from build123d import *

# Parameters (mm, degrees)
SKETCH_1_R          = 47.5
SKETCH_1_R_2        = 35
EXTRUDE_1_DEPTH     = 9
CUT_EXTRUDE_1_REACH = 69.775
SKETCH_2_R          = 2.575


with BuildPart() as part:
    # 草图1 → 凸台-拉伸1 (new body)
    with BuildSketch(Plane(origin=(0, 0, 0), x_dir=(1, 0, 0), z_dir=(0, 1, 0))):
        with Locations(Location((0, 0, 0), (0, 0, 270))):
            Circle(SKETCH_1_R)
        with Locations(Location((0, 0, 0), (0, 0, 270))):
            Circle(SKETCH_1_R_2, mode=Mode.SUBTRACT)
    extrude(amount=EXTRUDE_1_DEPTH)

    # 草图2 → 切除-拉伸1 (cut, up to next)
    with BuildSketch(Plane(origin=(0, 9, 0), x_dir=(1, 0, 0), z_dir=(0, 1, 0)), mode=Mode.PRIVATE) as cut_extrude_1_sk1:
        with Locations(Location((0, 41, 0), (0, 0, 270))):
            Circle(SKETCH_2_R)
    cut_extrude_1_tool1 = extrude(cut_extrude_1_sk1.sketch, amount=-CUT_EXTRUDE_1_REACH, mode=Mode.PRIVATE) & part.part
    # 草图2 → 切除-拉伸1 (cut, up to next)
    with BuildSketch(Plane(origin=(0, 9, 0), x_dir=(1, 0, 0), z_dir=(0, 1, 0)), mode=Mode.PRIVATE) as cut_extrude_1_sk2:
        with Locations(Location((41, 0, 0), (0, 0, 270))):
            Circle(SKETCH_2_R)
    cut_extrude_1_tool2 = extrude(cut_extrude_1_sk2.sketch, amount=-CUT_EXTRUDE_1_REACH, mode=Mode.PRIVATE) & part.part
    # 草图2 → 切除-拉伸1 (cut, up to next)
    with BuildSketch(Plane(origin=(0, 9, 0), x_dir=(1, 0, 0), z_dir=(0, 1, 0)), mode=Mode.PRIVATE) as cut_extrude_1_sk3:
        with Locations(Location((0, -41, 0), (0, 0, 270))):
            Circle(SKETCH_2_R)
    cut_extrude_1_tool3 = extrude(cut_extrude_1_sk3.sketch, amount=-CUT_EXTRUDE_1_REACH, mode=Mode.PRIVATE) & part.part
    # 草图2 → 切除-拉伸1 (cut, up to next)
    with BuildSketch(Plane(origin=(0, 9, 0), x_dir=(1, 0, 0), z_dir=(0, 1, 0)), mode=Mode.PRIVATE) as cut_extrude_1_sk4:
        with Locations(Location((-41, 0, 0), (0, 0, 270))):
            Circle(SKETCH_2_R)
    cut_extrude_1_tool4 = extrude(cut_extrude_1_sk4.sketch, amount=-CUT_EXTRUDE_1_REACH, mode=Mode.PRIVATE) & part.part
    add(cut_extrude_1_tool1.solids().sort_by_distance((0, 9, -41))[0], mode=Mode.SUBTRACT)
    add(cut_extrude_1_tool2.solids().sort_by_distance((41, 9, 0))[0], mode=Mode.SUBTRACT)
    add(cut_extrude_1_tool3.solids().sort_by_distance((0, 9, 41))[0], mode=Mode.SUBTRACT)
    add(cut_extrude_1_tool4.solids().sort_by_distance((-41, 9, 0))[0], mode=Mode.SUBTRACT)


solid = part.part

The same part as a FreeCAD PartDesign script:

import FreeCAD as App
import Part
import Sketcher
from FreeCAD import Vector
Q = App.Units.Quantity

doc = App.newDocument("Part")
params = doc.addObject("Spreadsheet::Sheet", "Params")
for row, (alias, value) in enumerate([
    ("sketch1_diameter", "95 mm"),
    ("sketch1_diameter2", "70 mm"),
    ("pad1_length", "9 mm"),
    ("sketch2_diameter", "5.15 mm"),
    ("sketch3_diameter", "5.15 mm"),
    ("sketch4_diameter", "5.15 mm"),
    ("sketch5_diameter", "5.15 mm"),
], start=1):
    params.set(f"A{row}", alias)
    params.set(f"B{row}", "=" + value)
    params.setAlias(f"B{row}", alias)

body = doc.addObject("PartDesign::Body", "Body")

# Sketch on XZ plane
sketch1 = body.newObject("Sketcher::SketchObject", "Sketch")
sketch1.AttachmentSupport = (doc.getObject("XZ_Plane"), [""])
sketch1.MapMode = "FlatFace"
sketch1.addGeometry(Part.Circle(Vector(0, 0, 0), Vector(0, 0, 1), 48), False)
sketch1.addGeometry(Part.Circle(Vector(0, 0, 0), Vector(0, 0, 1), 35), False)
sketch1.addConstraint(Sketcher.Constraint("Coincident", 0, 3, -1, 1))
sketch1.addConstraint(Sketcher.Constraint("Coincident", 1, 3, -1, 1))
sketch1.addConstraint(Sketcher.Constraint("Diameter", 0, Q("95 mm")))
sketch1.addConstraint(Sketcher.Constraint("Diameter", 1, Q("70 mm")))
sketch1.setExpression("Constraints[2]", "Params.sketch1_diameter")
sketch1.setExpression("Constraints[3]", "Params.sketch1_diameter2")
pad1 = body.newObject("PartDesign::Pad", "Pad")
pad1.Profile = sketch1
pad1.setExpression("Length", "Params.pad1_length")
pad1.Reversed = True

# Sketch on XZ plane
sketch2 = body.newObject("Sketcher::SketchObject", "Sketch001")
sketch2.AttachmentSupport = (doc.getObject("XZ_Plane"), [""])
sketch2.MapMode = "FlatFace"
sketch2.AttachmentOffset = App.Placement(Vector(0, 0, -9), App.Rotation())
sketch2.addGeometry(Part.Circle(Vector(0, -41, 0), Vector(0, 0, 1), 2.6), False)
sketch2.addConstraint(Sketcher.Constraint("PointOnObject", 0, 3, -2))
sketch2.addConstraint(Sketcher.Constraint("Diameter", 0, Q("5.15 mm")))
sketch2.addConstraint(Sketcher.Constraint("DistanceY", 0, 3, -1, 1, Q("41 mm")))
sketch2.setExpression("Constraints[1]", "Params.sketch2_diameter")
pocket1 = body.newObject("PartDesign::Pocket", "Pocket")
pocket1.Profile = sketch2
pocket1.Type = "UpToFirst"
pocket1.Reversed = True

# Sketch on XZ plane
sketch3 = body.newObject("Sketcher::SketchObject", "Sketch002")
sketch3.AttachmentSupport = (doc.getObject("XZ_Plane"), [""])
sketch3.MapMode = "FlatFace"
sketch3.AttachmentOffset = App.Placement(Vector(0, 0, -9), App.Rotation())
sketch3.addGeometry(Part.Circle(Vector(41, 0, 0), Vector(0, 0, 1), 2.6), False)
sketch3.addConstraint(Sketcher.Constraint("PointOnObject", 0, 3, -1))
sketch3.addConstraint(Sketcher.Constraint("Diameter", 0, Q("5.15 mm")))
sketch3.addConstraint(Sketcher.Constraint("DistanceX", -1, 1, 0, 3, Q("41 mm")))
sketch3.setExpression("Constraints[1]", "Params.sketch3_diameter")
pocket2 = body.newObject("PartDesign::Pocket", "Pocket001")
pocket2.Profile = sketch3
pocket2.Type = "UpToFirst"
pocket2.Reversed = True

# Sketch on XZ plane
sketch4 = body.newObject("Sketcher::SketchObject", "Sketch003")
sketch4.AttachmentSupport = (doc.getObject("XZ_Plane"), [""])
sketch4.MapMode = "FlatFace"
sketch4.AttachmentOffset = App.Placement(Vector(0, 0, -9), App.Rotation())
sketch4.addGeometry(Part.Circle(Vector(0, 41, 0), Vector(0, 0, 1), 2.6), False)
sketch4.addConstraint(Sketcher.Constraint("PointOnObject", 0, 3, -2))
sketch4.addConstraint(Sketcher.Constraint("Diameter", 0, Q("5.15 mm")))
sketch4.addConstraint(Sketcher.Constraint("DistanceY", -1, 1, 0, 3, Q("41 mm")))
sketch4.setExpression("Constraints[1]", "Params.sketch4_diameter")
pocket3 = body.newObject("PartDesign::Pocket", "Pocket002")
pocket3.Profile = sketch4
pocket3.Type = "UpToFirst"
pocket3.Reversed = True

# Sketch on XZ plane
sketch5 = body.newObject("Sketcher::SketchObject", "Sketch004")
sketch5.AttachmentSupport = (doc.getObject("XZ_Plane"), [""])
sketch5.MapMode = "FlatFace"
sketch5.AttachmentOffset = App.Placement(Vector(0, 0, -9), App.Rotation())
sketch5.addGeometry(Part.Circle(Vector(-41, 0, 0), Vector(0, 0, 1), 2.6), False)
sketch5.addConstraint(Sketcher.Constraint("PointOnObject", 0, 3, -1))
sketch5.addConstraint(Sketcher.Constraint("Diameter", 0, Q("5.15 mm")))
sketch5.addConstraint(Sketcher.Constraint("DistanceX", 0, 3, -1, 1, Q("41 mm")))
sketch5.setExpression("Constraints[1]", "Params.sketch5_diameter")
pocket4 = body.newObject("PartDesign::Pocket", "Pocket003")
pocket4.Profile = sketch5
pocket4.Type = "UpToFirst"
pocket4.Reversed = True

doc.recompute()
